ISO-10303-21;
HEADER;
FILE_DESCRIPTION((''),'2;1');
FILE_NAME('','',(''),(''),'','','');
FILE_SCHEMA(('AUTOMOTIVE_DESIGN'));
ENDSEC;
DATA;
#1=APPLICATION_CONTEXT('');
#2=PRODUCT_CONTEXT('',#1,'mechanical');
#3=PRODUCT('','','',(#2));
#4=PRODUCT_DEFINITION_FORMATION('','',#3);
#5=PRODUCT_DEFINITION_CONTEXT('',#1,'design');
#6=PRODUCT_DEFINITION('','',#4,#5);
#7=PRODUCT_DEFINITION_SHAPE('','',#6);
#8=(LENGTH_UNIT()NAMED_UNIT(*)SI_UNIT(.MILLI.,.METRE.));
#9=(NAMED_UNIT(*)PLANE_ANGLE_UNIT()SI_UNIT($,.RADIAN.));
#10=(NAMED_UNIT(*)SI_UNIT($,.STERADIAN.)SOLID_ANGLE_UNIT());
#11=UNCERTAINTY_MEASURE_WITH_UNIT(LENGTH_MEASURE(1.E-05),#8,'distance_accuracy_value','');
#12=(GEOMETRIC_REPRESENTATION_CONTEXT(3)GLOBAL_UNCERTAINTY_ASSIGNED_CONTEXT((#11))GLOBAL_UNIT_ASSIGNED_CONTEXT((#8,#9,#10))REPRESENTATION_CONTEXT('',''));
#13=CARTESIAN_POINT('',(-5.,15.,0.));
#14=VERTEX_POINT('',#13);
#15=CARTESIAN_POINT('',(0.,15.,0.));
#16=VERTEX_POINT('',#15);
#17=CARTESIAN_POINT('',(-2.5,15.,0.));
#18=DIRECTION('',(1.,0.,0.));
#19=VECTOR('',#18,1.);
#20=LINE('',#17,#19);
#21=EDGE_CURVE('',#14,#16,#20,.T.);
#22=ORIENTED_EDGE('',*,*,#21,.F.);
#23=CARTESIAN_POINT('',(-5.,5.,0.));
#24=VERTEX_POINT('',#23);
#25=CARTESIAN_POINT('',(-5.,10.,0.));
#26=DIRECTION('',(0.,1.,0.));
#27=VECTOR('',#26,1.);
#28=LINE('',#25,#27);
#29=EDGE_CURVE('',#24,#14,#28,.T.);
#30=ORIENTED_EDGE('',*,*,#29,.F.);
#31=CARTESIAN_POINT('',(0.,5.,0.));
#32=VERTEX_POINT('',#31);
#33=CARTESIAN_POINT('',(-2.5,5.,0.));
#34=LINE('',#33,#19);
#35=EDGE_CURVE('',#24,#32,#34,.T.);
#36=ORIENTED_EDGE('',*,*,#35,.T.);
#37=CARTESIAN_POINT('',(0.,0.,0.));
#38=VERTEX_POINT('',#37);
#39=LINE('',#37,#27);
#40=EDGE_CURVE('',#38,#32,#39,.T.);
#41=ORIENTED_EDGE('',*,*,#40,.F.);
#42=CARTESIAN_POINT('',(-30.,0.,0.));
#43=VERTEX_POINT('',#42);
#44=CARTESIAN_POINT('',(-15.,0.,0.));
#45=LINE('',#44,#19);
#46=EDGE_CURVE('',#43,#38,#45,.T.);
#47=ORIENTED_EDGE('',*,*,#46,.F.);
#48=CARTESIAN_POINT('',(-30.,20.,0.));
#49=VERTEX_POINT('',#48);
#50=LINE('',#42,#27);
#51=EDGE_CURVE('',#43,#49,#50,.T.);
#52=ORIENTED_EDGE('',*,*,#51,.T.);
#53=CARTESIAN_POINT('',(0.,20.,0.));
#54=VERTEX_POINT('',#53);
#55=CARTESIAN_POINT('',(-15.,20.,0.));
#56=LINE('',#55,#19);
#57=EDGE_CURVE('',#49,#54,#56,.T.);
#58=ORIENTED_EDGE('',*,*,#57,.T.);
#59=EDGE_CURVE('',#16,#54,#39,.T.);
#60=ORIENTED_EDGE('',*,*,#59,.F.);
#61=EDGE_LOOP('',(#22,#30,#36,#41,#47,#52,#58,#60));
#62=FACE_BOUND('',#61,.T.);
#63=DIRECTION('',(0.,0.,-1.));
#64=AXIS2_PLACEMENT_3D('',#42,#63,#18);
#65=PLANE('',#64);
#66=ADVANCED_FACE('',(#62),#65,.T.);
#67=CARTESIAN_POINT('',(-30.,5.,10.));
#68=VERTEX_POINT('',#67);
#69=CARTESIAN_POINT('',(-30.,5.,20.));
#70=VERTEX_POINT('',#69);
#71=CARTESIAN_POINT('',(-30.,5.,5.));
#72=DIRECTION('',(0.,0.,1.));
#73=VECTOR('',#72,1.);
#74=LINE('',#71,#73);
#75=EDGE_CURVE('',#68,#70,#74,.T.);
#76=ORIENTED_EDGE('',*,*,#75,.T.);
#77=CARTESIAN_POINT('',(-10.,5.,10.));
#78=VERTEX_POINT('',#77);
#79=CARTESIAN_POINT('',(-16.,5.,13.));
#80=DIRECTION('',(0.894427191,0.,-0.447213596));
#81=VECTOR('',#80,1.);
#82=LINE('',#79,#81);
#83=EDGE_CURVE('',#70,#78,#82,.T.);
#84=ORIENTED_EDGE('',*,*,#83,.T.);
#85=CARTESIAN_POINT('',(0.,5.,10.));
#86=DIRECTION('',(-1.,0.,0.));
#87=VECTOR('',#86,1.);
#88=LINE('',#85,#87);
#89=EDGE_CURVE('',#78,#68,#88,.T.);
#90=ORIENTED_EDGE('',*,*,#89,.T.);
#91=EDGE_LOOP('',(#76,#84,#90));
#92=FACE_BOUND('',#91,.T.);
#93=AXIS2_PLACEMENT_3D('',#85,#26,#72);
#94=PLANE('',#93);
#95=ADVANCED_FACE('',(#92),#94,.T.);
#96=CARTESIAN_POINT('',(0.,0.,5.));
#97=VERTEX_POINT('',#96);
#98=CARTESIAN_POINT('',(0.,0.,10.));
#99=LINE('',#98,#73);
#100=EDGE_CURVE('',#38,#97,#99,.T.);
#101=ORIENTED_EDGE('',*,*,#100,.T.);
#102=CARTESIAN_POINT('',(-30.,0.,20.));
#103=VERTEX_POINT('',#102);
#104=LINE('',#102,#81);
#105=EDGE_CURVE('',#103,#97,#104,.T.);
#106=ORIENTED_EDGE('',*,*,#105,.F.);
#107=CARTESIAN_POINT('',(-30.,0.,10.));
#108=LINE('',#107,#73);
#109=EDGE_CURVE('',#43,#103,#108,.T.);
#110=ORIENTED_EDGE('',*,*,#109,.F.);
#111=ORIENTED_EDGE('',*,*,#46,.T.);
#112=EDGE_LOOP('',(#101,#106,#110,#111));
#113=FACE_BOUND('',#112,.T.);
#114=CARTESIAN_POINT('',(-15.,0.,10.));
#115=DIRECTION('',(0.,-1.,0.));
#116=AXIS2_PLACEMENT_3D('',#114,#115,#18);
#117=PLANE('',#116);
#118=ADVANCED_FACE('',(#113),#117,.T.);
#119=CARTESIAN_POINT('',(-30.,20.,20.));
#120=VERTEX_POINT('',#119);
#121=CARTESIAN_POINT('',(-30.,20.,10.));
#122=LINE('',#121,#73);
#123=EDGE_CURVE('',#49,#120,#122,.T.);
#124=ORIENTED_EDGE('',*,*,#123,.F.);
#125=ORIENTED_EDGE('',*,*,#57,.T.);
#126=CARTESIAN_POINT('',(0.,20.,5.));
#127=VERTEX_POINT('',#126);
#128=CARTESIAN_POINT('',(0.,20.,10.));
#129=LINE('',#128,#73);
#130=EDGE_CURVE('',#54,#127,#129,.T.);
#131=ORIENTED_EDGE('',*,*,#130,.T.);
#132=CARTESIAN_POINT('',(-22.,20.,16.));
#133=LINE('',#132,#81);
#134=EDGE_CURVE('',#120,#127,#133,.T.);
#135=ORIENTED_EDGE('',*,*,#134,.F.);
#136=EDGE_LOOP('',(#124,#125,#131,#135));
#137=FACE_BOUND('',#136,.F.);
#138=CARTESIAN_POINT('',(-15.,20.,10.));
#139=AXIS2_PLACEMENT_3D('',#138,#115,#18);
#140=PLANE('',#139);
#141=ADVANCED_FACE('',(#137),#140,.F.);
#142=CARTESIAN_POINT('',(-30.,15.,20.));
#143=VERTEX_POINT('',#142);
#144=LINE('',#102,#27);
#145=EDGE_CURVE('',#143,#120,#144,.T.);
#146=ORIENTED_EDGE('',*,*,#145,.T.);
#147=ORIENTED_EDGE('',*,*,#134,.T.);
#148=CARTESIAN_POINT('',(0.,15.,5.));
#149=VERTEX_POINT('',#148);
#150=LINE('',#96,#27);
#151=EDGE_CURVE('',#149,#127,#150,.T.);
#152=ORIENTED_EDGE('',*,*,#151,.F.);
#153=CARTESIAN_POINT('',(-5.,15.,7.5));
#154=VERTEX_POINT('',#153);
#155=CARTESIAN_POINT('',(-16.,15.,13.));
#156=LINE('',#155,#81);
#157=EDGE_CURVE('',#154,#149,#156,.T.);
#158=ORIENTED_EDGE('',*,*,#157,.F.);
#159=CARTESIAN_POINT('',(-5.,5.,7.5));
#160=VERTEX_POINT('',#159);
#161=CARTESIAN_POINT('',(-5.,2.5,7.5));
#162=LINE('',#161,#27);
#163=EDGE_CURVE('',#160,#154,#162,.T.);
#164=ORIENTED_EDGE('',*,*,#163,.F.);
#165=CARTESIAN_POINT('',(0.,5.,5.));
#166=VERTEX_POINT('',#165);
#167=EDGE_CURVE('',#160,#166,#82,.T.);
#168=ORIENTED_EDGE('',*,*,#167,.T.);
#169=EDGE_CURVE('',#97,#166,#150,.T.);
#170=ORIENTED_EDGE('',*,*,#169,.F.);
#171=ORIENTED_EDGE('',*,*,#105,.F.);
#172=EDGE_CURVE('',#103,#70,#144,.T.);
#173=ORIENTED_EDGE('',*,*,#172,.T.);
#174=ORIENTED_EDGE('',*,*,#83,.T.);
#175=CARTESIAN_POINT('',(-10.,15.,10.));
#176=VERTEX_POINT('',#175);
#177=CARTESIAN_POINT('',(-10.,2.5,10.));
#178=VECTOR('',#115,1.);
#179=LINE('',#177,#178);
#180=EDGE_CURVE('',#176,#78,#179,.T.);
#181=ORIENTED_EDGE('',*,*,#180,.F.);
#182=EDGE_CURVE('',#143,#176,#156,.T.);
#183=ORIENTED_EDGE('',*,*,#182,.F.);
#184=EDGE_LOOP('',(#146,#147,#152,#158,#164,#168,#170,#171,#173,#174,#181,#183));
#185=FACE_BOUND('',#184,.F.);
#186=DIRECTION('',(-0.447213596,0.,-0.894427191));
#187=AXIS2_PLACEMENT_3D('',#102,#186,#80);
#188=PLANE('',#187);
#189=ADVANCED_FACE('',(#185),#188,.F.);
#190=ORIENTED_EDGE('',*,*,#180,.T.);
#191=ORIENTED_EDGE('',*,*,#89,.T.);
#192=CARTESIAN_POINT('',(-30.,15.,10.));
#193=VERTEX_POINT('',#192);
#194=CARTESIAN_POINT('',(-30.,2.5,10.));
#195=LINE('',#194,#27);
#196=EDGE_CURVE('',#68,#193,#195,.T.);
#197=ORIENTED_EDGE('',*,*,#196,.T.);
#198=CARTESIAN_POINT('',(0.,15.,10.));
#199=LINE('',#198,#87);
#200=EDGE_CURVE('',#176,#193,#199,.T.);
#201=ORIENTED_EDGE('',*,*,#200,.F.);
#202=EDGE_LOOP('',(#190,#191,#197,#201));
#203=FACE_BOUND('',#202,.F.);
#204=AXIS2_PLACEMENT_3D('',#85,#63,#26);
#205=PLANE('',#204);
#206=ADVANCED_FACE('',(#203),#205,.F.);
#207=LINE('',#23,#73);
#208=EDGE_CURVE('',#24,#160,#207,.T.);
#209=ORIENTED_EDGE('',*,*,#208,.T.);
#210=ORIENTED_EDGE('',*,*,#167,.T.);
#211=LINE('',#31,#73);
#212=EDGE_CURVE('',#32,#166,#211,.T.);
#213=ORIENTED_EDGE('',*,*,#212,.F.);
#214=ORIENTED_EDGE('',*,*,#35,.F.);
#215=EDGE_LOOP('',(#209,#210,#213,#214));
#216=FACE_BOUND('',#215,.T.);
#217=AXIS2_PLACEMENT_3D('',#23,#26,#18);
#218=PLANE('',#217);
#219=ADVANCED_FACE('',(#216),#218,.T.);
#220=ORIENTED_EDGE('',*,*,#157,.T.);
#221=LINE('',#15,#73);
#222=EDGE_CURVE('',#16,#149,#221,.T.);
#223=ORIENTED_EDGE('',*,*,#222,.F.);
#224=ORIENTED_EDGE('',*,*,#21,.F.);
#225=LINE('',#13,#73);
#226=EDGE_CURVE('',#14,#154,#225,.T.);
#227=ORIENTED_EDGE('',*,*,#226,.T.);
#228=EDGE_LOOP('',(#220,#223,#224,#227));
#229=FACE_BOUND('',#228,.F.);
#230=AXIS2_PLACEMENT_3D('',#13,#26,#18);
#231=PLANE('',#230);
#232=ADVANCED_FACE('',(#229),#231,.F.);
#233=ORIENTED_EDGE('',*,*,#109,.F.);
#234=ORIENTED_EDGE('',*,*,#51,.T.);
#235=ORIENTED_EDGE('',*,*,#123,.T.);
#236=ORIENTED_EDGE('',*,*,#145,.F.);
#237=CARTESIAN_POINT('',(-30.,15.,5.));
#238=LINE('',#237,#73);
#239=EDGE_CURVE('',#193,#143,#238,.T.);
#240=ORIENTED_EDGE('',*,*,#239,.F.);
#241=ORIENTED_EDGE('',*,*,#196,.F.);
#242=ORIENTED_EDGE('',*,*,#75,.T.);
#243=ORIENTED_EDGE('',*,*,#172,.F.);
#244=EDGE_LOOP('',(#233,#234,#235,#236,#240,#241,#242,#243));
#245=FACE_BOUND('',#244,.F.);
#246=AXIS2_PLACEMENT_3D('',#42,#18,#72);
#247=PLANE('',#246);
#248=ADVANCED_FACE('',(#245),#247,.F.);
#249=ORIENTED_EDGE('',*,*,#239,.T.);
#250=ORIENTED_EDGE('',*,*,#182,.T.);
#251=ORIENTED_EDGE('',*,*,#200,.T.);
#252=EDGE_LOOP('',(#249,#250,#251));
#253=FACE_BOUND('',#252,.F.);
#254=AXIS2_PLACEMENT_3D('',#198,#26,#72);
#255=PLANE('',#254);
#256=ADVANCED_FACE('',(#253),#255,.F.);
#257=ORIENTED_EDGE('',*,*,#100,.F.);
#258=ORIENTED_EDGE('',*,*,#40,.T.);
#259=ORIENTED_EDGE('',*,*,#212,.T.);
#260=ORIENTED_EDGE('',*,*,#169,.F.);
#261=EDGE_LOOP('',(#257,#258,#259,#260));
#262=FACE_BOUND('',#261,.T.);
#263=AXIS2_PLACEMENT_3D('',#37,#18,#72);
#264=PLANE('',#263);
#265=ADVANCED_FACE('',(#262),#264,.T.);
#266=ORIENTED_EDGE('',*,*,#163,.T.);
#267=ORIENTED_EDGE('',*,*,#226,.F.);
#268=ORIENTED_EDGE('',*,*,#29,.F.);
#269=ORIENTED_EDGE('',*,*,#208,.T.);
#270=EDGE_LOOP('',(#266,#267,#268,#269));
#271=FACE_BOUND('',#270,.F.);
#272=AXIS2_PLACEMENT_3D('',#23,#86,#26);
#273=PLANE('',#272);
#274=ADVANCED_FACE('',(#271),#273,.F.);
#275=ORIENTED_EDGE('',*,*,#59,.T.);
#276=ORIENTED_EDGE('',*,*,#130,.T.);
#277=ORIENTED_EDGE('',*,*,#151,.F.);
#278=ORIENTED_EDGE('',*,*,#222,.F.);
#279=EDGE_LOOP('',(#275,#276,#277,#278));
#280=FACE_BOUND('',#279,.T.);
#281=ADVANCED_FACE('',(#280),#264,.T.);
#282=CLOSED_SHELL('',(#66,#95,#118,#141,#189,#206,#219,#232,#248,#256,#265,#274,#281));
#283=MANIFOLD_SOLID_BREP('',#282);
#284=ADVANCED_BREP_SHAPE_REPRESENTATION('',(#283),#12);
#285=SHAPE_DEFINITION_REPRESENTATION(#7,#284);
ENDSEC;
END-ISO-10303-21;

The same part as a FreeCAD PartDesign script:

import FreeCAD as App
import Part
import Sketcher

V = App.Vector


def add_polygon(sketch, points):
    """Adds a closed chain of lines whose ends are joined by coincident constraints."""
    first, n = sketch.GeometryCount, len(points)
    for a, b in zip(points, points[1:] + points[:1]):
        sketch.addGeometry(Part.LineSegment(App.Vector(*a, 0), App.Vector(*b, 0)), False)
    for i in range(n):
        sketch.addConstraint(Sketcher.Constraint("Coincident", first + i, 2, first + (i + 1) % n, 1))

doc = App.newDocument("Part")
body = doc.addObject("PartDesign::Body", "Body")

# Sketch on XZ plane
sketch1 = doc.addObject("Sketcher::SketchObject", "Sketch")
body.addObject(sketch1)
sketch1.AttachmentSupport = (doc.XZ_Plane, [""])
sketch1.MapMode = "FlatFace"
add_polygon(sketch1, [(-30, 20), (-30, 0), (0, 0), (0, 20)])  # lines 0-3
sketch1.addConstraint([
    Sketcher.Constraint("Vertical", 0),
    Sketcher.Constraint("Horizontal", 1),
    Sketcher.Constraint("Vertical", 2),
    Sketcher.Constraint("Horizontal", 3),
    Sketcher.Constraint("Coincident", 1, 2, -1, 1),
    Sketcher.Constraint("DistanceX", 1, 1, 1, 2, 30.0),
    Sketcher.Constraint("DistanceY", 0, 2, 0, 1, 20.0),
])
pad1 = doc.addObject("PartDesign::Pad", "Pad")
body.addObject(pad1)
pad1.Profile = sketch1
pad1.Length = 20
pad1.Reversed = True

# Sketch on XZ plane
sketch2 = doc.addObject("Sketcher::SketchObject", "Sketch001")
body.addObject(sketch2)
sketch2.AttachmentSupport = (doc.XZ_Plane, [""])
sketch2.MapMode = "FlatFace"
add_polygon(sketch2, [(-30, 20), (0, 5), (0, 20)])  # lines 0-2
sketch2.addConstraint([
    Sketcher.Constraint("Vertical", 1),
    Sketcher.Constraint("Horizontal", 2),
    Sketcher.Constraint("PointOnObject", 0, 2, -2),
    Sketcher.Constraint("DistanceX", 2, 2, 2, 1, 30.0),
    Sketcher.Constraint("DistanceY", 1, 1, 1, 2, 15.0),
    Sketcher.Constraint("DistanceY", -1, 1, 0, 2, 5.0),
])
pocket1 = doc.addObject("PartDesign::Pocket", "Pocket")
body.addObject(pocket1)
pocket1.Profile = sketch2
pocket1.Type = "ThroughAll"

# Sketch on YZ plane
sketch3 = doc.addObject("Sketcher::SketchObject", "Sketch002")
body.addObject(sketch3)
sketch3.AttachmentSupport = (doc.YZ_Plane, [""])
sketch3.MapMode = "FlatFace"
add_polygon(sketch3, [(5, 20), (5, 10), (15, 10), (15, 20)])  # lines 0-3
sketch3.addConstraint([
    Sketcher.Constraint("Vertical", 0),
    Sketcher.Constraint("Horizontal", 1),
    Sketcher.Constraint("Vertical", 2),
    Sketcher.Constraint("Horizontal", 3),
    Sketcher.Constraint("Equal", 3, 0),
    Sketcher.Constraint("DistanceX", 1, 1, 1, 2, 10.0),
    Sketcher.Constraint("DistanceX", -1, 1, 0, 2, 5.0),
    Sketcher.Constraint("DistanceY", -1, 1, 0, 2, 10.0),
])
pocket2 = doc.addObject("PartDesign::Pocket", "Pocket001")
body.addObject(pocket2)
pocket2.Profile = sketch3
pocket2.Type = "ThroughAll"

# Sketch on XY plane
sketch4 = doc.addObject("Sketcher::SketchObject", "Sketch003")
body.addObject(sketch4)
sketch4.AttachmentSupport = (doc.XY_Plane, [""])
sketch4.MapMode = "FlatFace"
add_polygon(sketch4, [(-5, 15), (-5, 5), (0, 5), (0, 15)])  # lines 0-3
sketch4.addConstraint([
    Sketcher.Constraint("Vertical", 0),
    Sketcher.Constraint("Horizontal", 1),
    Sketcher.Constraint("Vertical", 2),
    Sketcher.Constraint("Horizontal", 3),
    Sketcher.Constraint("PointOnObject", 1, 2, -2),
    Sketcher.Constraint("DistanceX", 1, 1, 1, 2, 5.0),
    Sketcher.Constraint("DistanceY", 0, 2, 0, 1, 10.0),
    Sketcher.Constraint("DistanceY", -1, 1, 0, 2, 5.0),
])
pocket3 = doc.addObject("PartDesign::Pocket", "Pocket002")
body.addObject(pocket3)
pocket3.Profile = sketch4
pocket3.Type = "ThroughAll"
pocket3.Reversed = True

doc.recompute()
